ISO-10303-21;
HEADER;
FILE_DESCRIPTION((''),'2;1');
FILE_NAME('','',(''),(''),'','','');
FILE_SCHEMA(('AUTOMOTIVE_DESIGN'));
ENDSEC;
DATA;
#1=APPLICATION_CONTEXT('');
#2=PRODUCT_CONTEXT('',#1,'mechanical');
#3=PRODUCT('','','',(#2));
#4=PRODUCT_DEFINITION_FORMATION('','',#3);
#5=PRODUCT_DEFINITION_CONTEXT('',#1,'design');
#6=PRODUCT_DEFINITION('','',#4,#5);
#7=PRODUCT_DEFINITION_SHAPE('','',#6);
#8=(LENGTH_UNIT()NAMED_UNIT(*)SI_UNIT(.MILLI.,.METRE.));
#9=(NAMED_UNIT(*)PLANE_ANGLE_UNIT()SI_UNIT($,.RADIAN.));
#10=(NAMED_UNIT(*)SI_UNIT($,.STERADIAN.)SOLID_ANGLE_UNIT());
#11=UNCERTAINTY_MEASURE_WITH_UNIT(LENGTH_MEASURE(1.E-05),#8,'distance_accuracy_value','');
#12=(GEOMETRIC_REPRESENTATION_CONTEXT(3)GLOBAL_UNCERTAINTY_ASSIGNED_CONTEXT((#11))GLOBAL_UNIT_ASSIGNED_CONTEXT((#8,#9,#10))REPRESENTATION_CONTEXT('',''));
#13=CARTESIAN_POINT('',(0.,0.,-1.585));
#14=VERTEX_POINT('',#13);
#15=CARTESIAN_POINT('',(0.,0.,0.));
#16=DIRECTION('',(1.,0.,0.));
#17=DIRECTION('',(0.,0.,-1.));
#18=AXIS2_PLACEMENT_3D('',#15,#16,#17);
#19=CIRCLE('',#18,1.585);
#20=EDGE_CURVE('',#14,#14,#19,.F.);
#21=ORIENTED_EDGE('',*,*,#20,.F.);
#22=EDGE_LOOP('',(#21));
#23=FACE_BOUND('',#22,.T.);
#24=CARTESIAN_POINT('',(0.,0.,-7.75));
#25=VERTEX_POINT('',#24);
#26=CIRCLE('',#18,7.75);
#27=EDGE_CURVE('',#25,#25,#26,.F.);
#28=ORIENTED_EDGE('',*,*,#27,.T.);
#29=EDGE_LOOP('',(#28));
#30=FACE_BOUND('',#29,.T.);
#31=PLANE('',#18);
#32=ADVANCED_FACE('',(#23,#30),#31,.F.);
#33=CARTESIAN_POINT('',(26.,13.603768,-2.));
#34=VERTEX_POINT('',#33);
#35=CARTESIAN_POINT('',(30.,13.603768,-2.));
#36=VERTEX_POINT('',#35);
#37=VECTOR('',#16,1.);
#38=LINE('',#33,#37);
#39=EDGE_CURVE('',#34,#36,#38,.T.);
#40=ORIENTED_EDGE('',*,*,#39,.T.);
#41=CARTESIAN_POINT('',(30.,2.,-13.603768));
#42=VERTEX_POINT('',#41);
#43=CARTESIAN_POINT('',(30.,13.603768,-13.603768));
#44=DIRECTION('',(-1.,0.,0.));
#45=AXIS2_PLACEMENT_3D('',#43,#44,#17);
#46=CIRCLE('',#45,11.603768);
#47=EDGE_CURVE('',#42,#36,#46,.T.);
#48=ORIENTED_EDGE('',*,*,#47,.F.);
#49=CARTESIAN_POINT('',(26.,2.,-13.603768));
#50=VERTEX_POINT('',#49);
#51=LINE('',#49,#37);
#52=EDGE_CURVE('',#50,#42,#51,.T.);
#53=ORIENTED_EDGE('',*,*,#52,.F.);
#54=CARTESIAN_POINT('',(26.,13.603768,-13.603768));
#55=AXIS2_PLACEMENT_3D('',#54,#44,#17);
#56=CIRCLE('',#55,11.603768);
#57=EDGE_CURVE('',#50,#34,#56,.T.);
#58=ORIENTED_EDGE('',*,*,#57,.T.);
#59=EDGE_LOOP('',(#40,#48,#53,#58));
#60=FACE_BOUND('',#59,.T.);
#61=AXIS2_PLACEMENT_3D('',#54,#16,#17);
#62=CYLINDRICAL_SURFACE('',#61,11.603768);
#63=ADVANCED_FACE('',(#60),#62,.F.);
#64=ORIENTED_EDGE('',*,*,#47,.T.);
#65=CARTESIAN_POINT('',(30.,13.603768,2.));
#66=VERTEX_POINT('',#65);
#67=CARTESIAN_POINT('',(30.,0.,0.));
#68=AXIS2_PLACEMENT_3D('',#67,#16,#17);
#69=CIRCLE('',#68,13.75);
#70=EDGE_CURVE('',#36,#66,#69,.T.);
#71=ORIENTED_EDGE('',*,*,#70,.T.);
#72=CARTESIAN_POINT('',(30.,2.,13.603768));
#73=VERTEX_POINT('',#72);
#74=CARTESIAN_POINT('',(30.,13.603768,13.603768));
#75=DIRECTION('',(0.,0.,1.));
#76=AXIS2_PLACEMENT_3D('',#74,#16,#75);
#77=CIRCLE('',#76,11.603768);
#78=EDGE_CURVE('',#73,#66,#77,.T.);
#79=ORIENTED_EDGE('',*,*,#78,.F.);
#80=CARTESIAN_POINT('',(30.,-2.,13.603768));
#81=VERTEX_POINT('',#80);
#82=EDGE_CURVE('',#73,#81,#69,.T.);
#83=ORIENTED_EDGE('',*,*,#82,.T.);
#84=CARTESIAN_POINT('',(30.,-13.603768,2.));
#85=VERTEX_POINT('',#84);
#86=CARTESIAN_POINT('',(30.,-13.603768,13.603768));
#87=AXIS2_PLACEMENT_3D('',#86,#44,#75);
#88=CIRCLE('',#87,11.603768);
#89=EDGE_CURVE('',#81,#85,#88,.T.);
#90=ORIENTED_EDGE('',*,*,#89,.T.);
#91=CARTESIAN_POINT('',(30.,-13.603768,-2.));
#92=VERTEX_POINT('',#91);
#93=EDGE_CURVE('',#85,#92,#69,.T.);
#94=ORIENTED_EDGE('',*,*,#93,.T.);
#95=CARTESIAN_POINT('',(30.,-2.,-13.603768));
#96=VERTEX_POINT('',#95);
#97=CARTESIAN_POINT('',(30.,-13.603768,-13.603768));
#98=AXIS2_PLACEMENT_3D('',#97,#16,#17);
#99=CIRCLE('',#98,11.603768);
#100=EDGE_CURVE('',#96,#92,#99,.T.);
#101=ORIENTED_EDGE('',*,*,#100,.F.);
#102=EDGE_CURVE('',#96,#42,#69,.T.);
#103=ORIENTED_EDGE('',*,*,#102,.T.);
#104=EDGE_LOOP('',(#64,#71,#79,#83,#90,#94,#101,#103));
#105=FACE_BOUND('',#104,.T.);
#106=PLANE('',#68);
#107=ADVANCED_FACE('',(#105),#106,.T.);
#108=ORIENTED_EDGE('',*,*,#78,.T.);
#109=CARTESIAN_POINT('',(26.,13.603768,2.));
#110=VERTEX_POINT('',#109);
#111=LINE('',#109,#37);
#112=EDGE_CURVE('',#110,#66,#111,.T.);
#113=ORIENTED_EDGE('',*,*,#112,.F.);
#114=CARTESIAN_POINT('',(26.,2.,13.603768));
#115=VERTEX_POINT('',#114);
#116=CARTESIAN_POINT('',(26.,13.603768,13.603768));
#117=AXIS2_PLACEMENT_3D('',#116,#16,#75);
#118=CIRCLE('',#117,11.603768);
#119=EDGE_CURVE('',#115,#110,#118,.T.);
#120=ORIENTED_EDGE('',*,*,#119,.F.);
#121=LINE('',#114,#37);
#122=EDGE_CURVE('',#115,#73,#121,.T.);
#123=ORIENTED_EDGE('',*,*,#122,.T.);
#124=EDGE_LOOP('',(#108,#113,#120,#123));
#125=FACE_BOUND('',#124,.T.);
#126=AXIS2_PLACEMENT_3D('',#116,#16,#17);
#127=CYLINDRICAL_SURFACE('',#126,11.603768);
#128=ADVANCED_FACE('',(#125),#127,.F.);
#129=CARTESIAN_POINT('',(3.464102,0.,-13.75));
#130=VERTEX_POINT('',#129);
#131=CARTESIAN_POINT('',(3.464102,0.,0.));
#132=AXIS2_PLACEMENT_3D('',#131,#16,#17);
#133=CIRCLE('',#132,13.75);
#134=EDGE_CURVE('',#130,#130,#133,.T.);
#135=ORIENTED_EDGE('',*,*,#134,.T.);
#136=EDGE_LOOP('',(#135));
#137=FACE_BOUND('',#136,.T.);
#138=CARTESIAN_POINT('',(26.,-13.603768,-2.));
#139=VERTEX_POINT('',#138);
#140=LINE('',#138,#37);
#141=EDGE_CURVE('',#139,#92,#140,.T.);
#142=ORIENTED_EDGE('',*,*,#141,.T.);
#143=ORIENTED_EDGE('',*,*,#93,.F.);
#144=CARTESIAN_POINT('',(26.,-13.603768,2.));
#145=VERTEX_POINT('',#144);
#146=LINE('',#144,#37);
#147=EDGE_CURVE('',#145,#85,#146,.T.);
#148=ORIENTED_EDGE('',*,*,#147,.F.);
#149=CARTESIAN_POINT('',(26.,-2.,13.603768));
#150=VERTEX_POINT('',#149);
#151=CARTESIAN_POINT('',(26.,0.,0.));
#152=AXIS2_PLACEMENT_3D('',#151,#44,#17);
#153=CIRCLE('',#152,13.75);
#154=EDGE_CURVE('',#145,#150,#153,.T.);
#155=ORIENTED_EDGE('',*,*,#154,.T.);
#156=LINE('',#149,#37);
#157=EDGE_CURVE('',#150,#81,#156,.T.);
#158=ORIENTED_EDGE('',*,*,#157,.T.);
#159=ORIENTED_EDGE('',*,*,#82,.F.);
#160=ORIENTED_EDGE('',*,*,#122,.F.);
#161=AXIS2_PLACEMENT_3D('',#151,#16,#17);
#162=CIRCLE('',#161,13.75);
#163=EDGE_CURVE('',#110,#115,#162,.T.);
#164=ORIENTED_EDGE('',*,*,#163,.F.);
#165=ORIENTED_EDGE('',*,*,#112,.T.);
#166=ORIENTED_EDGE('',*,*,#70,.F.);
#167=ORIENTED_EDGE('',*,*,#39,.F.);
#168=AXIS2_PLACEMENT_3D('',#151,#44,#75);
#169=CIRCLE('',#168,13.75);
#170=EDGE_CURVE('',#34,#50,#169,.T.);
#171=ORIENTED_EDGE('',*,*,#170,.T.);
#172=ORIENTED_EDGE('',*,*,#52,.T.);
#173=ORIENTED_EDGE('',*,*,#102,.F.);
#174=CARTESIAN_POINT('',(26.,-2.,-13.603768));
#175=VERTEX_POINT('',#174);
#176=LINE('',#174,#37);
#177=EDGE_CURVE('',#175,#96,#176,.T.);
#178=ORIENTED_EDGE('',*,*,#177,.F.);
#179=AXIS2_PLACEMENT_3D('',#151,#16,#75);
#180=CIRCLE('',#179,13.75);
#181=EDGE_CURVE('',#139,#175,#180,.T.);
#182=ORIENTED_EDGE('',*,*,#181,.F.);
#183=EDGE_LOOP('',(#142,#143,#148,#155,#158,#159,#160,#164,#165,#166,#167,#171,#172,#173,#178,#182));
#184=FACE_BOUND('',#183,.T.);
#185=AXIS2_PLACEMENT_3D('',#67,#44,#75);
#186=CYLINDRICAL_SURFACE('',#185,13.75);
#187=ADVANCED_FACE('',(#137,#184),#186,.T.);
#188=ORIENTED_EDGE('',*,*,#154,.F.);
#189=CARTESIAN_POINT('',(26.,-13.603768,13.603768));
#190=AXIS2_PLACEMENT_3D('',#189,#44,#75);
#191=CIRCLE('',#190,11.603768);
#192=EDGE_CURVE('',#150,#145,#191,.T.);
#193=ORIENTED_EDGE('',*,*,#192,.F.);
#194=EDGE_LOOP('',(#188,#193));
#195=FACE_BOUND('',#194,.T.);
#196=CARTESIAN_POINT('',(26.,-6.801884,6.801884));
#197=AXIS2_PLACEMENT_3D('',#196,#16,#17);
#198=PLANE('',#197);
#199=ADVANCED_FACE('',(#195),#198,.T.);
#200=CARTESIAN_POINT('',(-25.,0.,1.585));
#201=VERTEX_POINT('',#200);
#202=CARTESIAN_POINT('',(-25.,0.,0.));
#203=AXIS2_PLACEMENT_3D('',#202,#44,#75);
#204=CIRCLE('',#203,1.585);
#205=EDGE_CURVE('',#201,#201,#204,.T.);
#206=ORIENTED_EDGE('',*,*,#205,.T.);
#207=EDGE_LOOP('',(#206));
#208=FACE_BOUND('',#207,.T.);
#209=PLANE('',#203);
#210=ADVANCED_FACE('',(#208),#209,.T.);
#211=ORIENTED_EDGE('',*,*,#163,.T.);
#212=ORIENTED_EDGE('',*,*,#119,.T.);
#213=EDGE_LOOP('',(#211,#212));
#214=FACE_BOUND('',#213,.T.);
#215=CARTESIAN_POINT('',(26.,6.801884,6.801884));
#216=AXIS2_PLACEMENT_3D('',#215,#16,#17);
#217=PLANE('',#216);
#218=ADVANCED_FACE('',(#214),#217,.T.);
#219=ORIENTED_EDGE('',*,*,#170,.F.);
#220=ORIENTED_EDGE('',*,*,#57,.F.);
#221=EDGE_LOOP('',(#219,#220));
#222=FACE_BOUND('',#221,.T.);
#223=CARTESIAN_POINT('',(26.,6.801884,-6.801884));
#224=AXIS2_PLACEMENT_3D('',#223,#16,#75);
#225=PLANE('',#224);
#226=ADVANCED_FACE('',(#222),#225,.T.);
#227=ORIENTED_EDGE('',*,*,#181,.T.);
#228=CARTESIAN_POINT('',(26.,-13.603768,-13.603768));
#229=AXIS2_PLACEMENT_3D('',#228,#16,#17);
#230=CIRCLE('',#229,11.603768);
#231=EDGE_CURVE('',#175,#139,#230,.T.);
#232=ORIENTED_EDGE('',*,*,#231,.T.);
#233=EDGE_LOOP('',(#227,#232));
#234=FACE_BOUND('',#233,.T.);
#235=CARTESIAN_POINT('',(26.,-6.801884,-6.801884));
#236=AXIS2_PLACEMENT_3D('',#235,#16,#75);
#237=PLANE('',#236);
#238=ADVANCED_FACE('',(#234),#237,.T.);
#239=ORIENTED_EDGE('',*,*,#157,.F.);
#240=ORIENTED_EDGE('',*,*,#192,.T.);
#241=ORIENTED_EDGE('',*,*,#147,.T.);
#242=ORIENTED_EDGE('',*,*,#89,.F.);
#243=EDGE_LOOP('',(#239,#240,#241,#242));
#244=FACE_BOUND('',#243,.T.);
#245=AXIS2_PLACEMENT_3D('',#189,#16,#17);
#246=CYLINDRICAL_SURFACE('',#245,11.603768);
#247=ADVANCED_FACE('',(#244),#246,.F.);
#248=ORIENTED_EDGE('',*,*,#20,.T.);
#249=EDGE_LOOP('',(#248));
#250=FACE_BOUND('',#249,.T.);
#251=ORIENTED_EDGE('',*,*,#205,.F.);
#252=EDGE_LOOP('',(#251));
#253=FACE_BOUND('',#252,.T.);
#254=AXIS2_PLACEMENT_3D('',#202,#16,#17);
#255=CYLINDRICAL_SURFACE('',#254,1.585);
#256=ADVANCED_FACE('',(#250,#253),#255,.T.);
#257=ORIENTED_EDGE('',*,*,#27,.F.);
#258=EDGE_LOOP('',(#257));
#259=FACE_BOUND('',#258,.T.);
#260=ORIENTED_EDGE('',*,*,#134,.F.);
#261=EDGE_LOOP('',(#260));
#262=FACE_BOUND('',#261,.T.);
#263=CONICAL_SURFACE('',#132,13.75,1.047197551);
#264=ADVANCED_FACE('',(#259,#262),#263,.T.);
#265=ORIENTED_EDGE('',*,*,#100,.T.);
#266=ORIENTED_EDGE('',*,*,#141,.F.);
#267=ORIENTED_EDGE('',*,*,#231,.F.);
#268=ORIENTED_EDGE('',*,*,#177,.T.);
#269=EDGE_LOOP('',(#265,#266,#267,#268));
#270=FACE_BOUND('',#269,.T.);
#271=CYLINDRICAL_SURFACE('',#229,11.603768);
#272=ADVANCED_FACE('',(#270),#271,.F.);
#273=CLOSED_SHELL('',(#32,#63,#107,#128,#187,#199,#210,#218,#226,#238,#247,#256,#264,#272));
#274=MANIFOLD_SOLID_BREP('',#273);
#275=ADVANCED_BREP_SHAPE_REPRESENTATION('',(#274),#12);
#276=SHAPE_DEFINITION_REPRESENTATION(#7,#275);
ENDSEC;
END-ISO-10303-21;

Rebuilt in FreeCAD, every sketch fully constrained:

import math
import FreeCAD as App
import Part
import Sketcher
Q = App.Units.Quantity


def edges_at(feature, points):
    """Names of the edges that pass closest to the given points."""
    edges = feature.Shape.Edges
    near = lambda p: min(range(len(edges)), key=lambda i: edges[i].distToShape(Part.Vertex(*p))[0])
    return sorted({f"Edge{near(p) + 1}" for p in points})

doc = App.newDocument("Part")
body = doc.addObject("PartDesign::Body", "Body")

# Sketch on YZ plane
sketch1 = doc.addObject("Sketcher::SketchObject", "Sketch")
body.addObject(sketch1)
sketch1.AttachmentSupport = (doc.YZ_Plane, [""])
sketch1.MapMode = "FlatFace"
sketch1.addGeometry(Part.Circle(App.Vector(0, 0, 0), App.Vector(0, 0, 1), 14), False)
sketch1.addConstraint(Sketcher.Constraint("Coincident", 0, 3, -1, 1))
sketch1.addConstraint(Sketcher.Constraint("Diameter", 0, Q("27.5 mm")))
pad1 = doc.addObject("PartDesign::Pad", "Pad")
body.addObject(pad1)
pad1.Profile = sketch1
pad1.Length = 30

# Sketch on YZ plane
sketch2 = doc.addObject("Sketcher::SketchObject", "Sketch001")
body.addObject(sketch2)
sketch2.AttachmentSupport = (doc.YZ_Plane, [""])
sketch2.MapMode = "FlatFace"
sketch2.addGeometry(Part.Circle(App.Vector(0, 0, 0), App.Vector(0, 0, 1), 1.6), False)
sketch2.addConstraint(Sketcher.Constraint("Coincident", 0, 3, -1, 1))
sketch2.addConstraint(Sketcher.Constraint("Diameter", 0, Q("3.17 mm")))
pad2 = doc.addObject("PartDesign::Pad", "Pad001")
body.addObject(pad2)
pad2.Profile = sketch2
pad2.Length = 25
pad2.Reversed = True
doc.recompute()

chamfer = doc.addObject("PartDesign::Chamfer", "Chamfer")
body.addObject(chamfer)
chamfer.Base = (pad2, edges_at(pad2, [(0, 0, 13.75)]))
chamfer.ChamferType = "Two distances"
chamfer.Size = 6
chamfer.Size2 = 3.464102
chamfer.FlipDirection = True

# Sketch on YZ plane
sketch3 = doc.addObject("Sketcher::SketchObject", "Sketch002")
body.addObject(sketch3)
sketch3.AttachmentSupport = (doc.YZ_Plane, [""])
sketch3.MapMode = "FlatFace"
sketch3.AttachmentOffset = App.Placement(App.Vector(0, 0, 26), App.Rotation())
sketch3.addGeometry(Part.ArcOfCircle(Part.Circle(App.Vector(14, 14, 0), App.Vector(0, 0, 1), 12), math.radians(180), math.radians(270)), False)
sketch3.addGeometry(Part.ArcOfCircle(Part.Circle(App.Vector(0, 0, 0), App.Vector(0, 0, 1), 14), math.radians(8), math.radians(82)), False)
sketch3.addConstraint(Sketcher.Constraint("Coincident", 0, 1, 1, 2))
sketch3.addConstraint(Sketcher.Constraint("Coincident", 1, 1, 0, 2))
sketch3.addConstraint(Sketcher.Constraint("Coincident", 1, 3, -1, 1))
sketch3.addConstraint(Sketcher.Constraint("Vertical", 0, 3, 1, 1))
sketch3.addConstraint(Sketcher.Constraint("Radius", 1, Q("13.75 mm")))
sketch3.addConstraint(Sketcher.Constraint("DistanceX", -1, 1, 0, 1, Q("2 mm")))
sketch3.addConstraint(Sketcher.Constraint("DistanceY", -1, 1, 1, 1, Q("2 mm")))
pocket1 = doc.addObject("PartDesign::Pocket", "Pocket")
body.addObject(pocket1)
pocket1.Profile = sketch3
pocket1.Length = 4
pocket1.Reversed = True
doc.recompute()

mirrored = doc.addObject("PartDesign::Mirrored", "Mirrored")
body.addObject(mirrored)
mirrored.Originals = [pocket1]
mirrored.MirrorPlane = (doc.XY_Plane, [""])
body.Tip = mirrored
doc.recompute()

mirrored2 = doc.addObject("PartDesign::Mirrored", "Mirrored001")
body.addObject(mirrored2)
mirrored2.Originals = [pocket1]
mirrored2.MirrorPlane = (doc.XZ_Plane, [""])
body.Tip = mirrored2

# Sketch on YZ plane
sketch4 = doc.addObject("Sketcher::SketchObject", "Sketch003")
body.addObject(sketch4)
sketch4.AttachmentSupport = (doc.YZ_Plane, [""])
sketch4.MapMode = "FlatFace"
sketch4.AttachmentOffset = App.Placement(App.Vector(0, 0, 26), App.Rotation())
sketch4.addGeometry(Part.ArcOfCircle(Part.Circle(App.Vector(-14, -14, 0), App.Vector(0, 0, 1), 12), math.radians(0), math.radians(90)), False)
sketch4.addGeometry(Part.ArcOfCircle(Part.Circle(App.Vector(0, 0, 0), App.Vector(0, 0, 1), 14), math.radians(-172), math.radians(-98)), False)
sketch4.addConstraint(Sketcher.Constraint("Coincident", 0, 1, 1, 2))
sketch4.addConstraint(Sketcher.Constraint("Coincident", 1, 1, 0, 2))
sketch4.addConstraint(Sketcher.Constraint("Coincident", 1, 3, -1, 1))
sketch4.addConstraint(Sketcher.Constraint("Vertical", 0, 3, 1, 1))
sketch4.addConstraint(Sketcher.Constraint("Radius", 1, Q("13.75 mm")))
sketch4.addConstraint(Sketcher.Constraint("DistanceX", 0, 1, -1, 1, Q("2 mm")))
sketch4.addConstraint(Sketcher.Constraint("DistanceY", 1, 1, -1, 1, Q("2 mm")))
pocket2 = doc.addObject("PartDesign::Pocket", "Pocket001")
body.addObject(pocket2)
pocket2.Profile = sketch4
pocket2.Length = 4
pocket2.Reversed = True

doc.recompute()
